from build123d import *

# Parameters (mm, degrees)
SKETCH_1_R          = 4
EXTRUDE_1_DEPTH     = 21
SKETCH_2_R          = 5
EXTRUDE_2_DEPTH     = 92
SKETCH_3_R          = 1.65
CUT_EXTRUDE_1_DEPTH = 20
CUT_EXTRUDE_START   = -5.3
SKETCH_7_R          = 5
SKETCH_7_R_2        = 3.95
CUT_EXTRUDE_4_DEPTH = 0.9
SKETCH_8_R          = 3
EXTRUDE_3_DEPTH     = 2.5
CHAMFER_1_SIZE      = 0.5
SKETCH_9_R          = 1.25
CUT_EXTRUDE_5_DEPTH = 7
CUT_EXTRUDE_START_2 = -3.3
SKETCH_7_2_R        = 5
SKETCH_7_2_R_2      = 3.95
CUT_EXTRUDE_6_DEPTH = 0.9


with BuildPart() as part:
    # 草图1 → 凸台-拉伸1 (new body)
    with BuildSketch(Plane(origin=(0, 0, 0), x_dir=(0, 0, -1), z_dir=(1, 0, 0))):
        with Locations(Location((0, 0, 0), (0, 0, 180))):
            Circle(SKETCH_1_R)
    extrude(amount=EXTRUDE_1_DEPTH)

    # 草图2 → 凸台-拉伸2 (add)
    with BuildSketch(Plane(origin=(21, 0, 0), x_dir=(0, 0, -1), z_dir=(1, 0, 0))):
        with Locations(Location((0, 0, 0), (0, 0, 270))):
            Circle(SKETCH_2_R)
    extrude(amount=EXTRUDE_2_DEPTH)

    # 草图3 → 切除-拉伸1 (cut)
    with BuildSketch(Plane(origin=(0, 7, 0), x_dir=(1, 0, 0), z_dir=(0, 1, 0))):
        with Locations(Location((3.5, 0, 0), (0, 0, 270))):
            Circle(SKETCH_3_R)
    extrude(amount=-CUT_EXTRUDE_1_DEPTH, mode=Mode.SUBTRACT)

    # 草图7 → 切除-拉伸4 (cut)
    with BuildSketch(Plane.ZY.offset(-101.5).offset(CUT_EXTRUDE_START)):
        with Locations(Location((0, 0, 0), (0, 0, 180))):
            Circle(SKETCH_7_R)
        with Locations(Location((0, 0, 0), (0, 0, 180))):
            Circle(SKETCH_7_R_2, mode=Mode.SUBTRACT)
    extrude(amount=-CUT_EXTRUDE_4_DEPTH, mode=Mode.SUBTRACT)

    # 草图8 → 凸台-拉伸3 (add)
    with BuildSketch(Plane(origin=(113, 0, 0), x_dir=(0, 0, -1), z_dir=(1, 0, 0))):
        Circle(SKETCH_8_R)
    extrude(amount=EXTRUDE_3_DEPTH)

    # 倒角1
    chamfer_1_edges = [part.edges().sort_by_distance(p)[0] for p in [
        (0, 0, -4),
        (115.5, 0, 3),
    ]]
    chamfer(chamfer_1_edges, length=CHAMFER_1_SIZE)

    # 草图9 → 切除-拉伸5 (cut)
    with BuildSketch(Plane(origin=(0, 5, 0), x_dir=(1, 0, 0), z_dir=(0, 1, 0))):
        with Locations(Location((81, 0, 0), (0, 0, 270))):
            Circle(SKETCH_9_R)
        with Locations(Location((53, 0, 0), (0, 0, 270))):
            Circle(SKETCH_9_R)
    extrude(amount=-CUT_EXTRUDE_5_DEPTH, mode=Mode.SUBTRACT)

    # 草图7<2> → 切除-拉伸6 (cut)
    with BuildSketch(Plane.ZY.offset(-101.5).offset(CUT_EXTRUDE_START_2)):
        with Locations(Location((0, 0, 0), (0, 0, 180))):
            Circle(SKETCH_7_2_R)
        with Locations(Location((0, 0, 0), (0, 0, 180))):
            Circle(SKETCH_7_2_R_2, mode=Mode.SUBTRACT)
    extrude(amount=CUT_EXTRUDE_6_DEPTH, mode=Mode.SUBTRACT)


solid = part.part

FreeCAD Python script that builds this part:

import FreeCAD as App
import Part
import Sketcher
from FreeCAD import Vector
Q = App.Units.Quantity


def edges_at(feature, points):
    """Names of the edges that pass closest to the given points."""
    edges = feature.Shape.Edges
    near = lambda p: min(range(len(edges)), key=lambda i: edges[i].distToShape(Part.Vertex(*p))[0])
    return sorted({f"Edge{near(p) + 1}" for p in points})

doc = App.newDocument("Part")
body = doc.addObject("PartDesign::Body", "Body")

sketch1 = doc.addObject("Sketcher::SketchObject", "Sketch")
body.addObject(sketch1)
sketch1.AttachmentSupport = (doc.YZ_Plane, [""])
sketch1.MapMode = "FlatFace"
sketch1.addGeometry(Part.Circle(Vector(0, 0, 0), Vector(0, 0, 1), 4), False)
sketch1.addConstraint([
    Sketcher.Constraint("Coincident", 0, 3, -1, 1),
    Sketcher.Constraint("Diameter", 0, Q("8 mm")),
])
pad1 = doc.addObject("PartDesign::Pad", "Pad")
body.addObject(pad1)
pad1.Profile = sketch1
pad1.Length = 21

sketch2 = doc.addObject("Sketcher::SketchObject", "Sketch001")
body.addObject(sketch2)
sketch2.AttachmentSupport = (doc.YZ_Plane, [""])
sketch2.MapMode = "FlatFace"
sketch2.AttachmentOffset = App.Placement(Vector(0, 0, 21), App.Rotation())
sketch2.addGeometry(Part.Circle(Vector(0, 0, 0), Vector(0, 0, 1), 5), False)
sketch2.addConstraint([
    Sketcher.Constraint("Coincident", 0, 3, -1, 1),
    Sketcher.Constraint("Diameter", 0, Q("10 mm")),
])
pad2 = doc.addObject("PartDesign::Pad", "Pad001")
body.addObject(pad2)
pad2.Profile = sketch2
pad2.Length = 92

sketch3 = doc.addObject("Sketcher::SketchObject", "Sketch002")
body.addObject(sketch3)
sketch3.AttachmentSupport = (doc.XZ_Plane, [""])
sketch3.MapMode = "FlatFace"
sketch3.AttachmentOffset = App.Placement(Vector(0, 0, -7), App.Rotation())
sketch3.addGeometry(Part.Circle(Vector(3.5, 0, 0), Vector(0, 0, 1), 1.6), False)
sketch3.addConstraint([
    Sketcher.Constraint("PointOnObject", 0, 3, -1),
    Sketcher.Constraint("Diameter", 0, Q("3.3 mm")),
    Sketcher.Constraint("DistanceX", -1, 1, 0, 3, Q("3.5 mm")),
])
pocket1 = doc.addObject("PartDesign::Pocket", "Pocket")
body.addObject(pocket1)
pocket1.Profile = sketch3
pocket1.Length = 20
pocket1.Reversed = True

sketch4 = doc.addObject("Sketcher::SketchObject", "Sketch003")
body.addObject(sketch4)
sketch4.AttachmentSupport = (doc.YZ_Plane, [""])
sketch4.MapMode = "FlatFace"
sketch4.AttachmentOffset = App.Placement(Vector(0, 0, 106.8), App.Rotation())
sketch4.addGeometry([
    Part.Circle(Vector(0, 0, 0), Vector(0, 0, 1), 5),
    Part.Circle(Vector(0, 0, 0), Vector(0, 0, 1), 4),
], False)
sketch4.addConstraint([
    Sketcher.Constraint("Coincident", 0, 3, -1, 1),
    Sketcher.Constraint("Coincident", 1, 3, -1, 1),
    Sketcher.Constraint("Diameter", 0, Q("10 mm")),
    Sketcher.Constraint("Diameter", 1, Q("7.9 mm")),
])
pocket2 = doc.addObject("PartDesign::Pocket", "Pocket001")
body.addObject(pocket2)
pocket2.Profile = sketch4
pocket2.Length = 0.9
pocket2.Reversed = True

sketch5 = doc.addObject("Sketcher::SketchObject", "Sketch004")
body.addObject(sketch5)
sketch5.AttachmentSupport = (doc.YZ_Plane, [""])
sketch5.MapMode = "FlatFace"
sketch5.AttachmentOffset = App.Placement(Vector(0, 0, 113), App.Rotation())
sketch5.addGeometry(Part.Circle(Vector(0, 0, 0), Vector(0, 0, 1), 3), False)
sketch5.addConstraint([
    Sketcher.Constraint("Coincident", 0, 3, -1, 1),
    Sketcher.Constraint("Diameter", 0, Q("6 mm")),
])
pad3 = doc.addObject("PartDesign::Pad", "Pad002")
body.addObject(pad3)
pad3.Profile = sketch5
pad3.Length = 2.5
doc.recompute()

chamfer = doc.addObject("PartDesign::Chamfer", "Chamfer")
body.addObject(chamfer)
chamfer.Base = (pad3, edges_at(pad3, [(0, 0, -4), (115.5, 0, 3)]))
chamfer.Size = 0.5

sketch6 = doc.addObject("Sketcher::SketchObject", "Sketch005")
body.addObject(sketch6)
sketch6.AttachmentSupport = (doc.XZ_Plane, [""])
sketch6.MapMode = "FlatFace"
sketch6.AttachmentOffset = App.Placement(Vector(0, 0, -5), App.Rotation())
sketch6.addGeometry([
    Part.Circle(Vector(81, 0, 0), Vector(0, 0, 1), 1.2),
    Part.Circle(Vector(53, 0, 0), Vector(0, 0, 1), 1.2),
], False)
sketch6.addConstraint([
    Sketcher.Constraint("Equal", 0, 1),
    Sketcher.Constraint("PointOnObject", 0, 3, -1),
    Sketcher.Constraint("PointOnObject", 1, 3, -1),
    Sketcher.Constraint("Diameter", 0, Q("2.5 mm")),
    Sketcher.Constraint("DistanceX", -1, 1, 0, 3, Q("81 mm")),
    Sketcher.Constraint("DistanceX", -1, 1, 1, 3, Q("53 mm")),
])
pocket3 = doc.addObject("PartDesign::Pocket", "Pocket002")
body.addObject(pocket3)
pocket3.Profile = sketch6
pocket3.Length = 7
pocket3.Reversed = True

sketch7 = doc.addObject("Sketcher::SketchObject", "Sketch006")
body.addObject(sketch7)
sketch7.AttachmentSupport = (doc.YZ_Plane, [""])
sketch7.MapMode = "FlatFace"
sketch7.AttachmentOffset = App.Placement(Vector(0, 0, 104.8), App.Rotation())
sketch7.addGeometry([
    Part.Circle(Vector(0, 0, 0), Vector(0, 0, 1), 5),
    Part.Circle(Vector(0, 0, 0), Vector(0, 0, 1), 4),
], False)
sketch7.addConstraint([
    Sketcher.Constraint("Coincident", 0, 3, -1, 1),
    Sketcher.Constraint("Coincident", 1, 3, -1, 1),
    Sketcher.Constraint("Diameter", 0, Q("10 mm")),
    Sketcher.Constraint("Diameter", 1, Q("7.9 mm")),
])
pocket4 = doc.addObject("PartDesign::Pocket", "Pocket003")
body.addObject(pocket4)
pocket4.Profile = sketch7
pocket4.Length = 0.9

doc.recompute()
